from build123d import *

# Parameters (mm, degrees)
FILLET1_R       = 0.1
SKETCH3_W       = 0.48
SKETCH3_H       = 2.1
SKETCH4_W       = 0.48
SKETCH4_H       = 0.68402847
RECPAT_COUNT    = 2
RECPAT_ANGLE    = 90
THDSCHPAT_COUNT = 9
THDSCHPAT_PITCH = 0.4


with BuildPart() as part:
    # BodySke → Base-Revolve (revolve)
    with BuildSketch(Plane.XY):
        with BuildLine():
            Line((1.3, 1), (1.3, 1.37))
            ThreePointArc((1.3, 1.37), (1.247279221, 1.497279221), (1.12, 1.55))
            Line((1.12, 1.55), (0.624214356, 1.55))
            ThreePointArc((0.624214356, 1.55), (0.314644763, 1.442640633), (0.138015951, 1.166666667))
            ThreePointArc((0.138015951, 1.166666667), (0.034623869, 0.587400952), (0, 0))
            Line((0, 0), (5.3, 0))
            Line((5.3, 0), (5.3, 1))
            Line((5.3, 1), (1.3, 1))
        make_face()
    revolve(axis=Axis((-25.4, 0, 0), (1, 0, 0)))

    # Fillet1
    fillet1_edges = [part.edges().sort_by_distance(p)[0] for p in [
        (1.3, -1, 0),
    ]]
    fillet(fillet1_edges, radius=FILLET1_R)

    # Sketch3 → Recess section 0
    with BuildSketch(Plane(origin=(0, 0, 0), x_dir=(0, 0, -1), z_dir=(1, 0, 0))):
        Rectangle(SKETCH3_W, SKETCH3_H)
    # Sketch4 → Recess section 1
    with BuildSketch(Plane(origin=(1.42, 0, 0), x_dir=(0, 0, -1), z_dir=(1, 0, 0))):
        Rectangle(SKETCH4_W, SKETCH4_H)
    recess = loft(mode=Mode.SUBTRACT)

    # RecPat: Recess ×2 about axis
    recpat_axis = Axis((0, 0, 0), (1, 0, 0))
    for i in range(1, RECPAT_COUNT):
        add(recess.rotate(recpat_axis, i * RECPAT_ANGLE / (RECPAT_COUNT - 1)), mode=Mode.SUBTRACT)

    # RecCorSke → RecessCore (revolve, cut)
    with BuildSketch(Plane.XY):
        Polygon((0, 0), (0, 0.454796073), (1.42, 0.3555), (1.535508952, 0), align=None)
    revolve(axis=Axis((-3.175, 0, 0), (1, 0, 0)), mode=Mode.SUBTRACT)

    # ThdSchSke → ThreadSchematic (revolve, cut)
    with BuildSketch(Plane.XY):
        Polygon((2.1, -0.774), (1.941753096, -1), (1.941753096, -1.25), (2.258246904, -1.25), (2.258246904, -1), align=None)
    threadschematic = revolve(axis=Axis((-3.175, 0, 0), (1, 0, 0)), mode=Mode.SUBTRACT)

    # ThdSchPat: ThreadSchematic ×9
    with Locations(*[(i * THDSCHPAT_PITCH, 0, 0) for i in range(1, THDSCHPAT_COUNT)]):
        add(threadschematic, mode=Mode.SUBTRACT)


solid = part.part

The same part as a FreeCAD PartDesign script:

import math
import FreeCAD as App
import Part
import Sketcher
from FreeCAD import Vector
Q = App.Units.Quantity


def edges_at(feature, points):
    """Names of the edges that pass closest to the given points."""
    edges = feature.Shape.Edges
    near = lambda p: min(range(len(edges)), key=lambda i: edges[i].distToShape(Part.Vertex(*p))[0])
    return sorted({f"Edge{near(p) + 1}" for p in points})


def add_polygon(sketch, points):
    """Adds a closed chain of lines whose ends are joined by coincident constraints."""
    first, n = sketch.GeometryCount, len(points)
    for a, b in zip(points, points[1:] + points[:1]):
        sketch.addGeometry(Part.LineSegment(App.Vector(*a, 0), App.Vector(*b, 0)), False)
    for i in range(n):
        sketch.addConstraint(Sketcher.Constraint("Coincident", first + i, 2, first + (i + 1) % n, 1))

doc = App.newDocument("Part")
params = doc.addObject("Spreadsheet::Sheet", "Params")
for row, (alias, value) in enumerate([
    ("sketch1_radius", "5 mm"),
    ("sketch1_radius2", "0.5 mm"),
    ("sketch1_width", "4 mm"),
    ("sketch1_height", "1 mm"),
    ("sketch1_radius3", "0.18 mm"),
    ("revolution_angle", "360 deg"),
    ("fillet_radius", "0.1 mm"),
    ("sketch2_width", "2.1 mm"),
    ("sketch2_height", "0.48 mm"),
    ("sketch3_height", "0.48 mm"),
    ("groove_angle", "360 deg"),
    ("sketch5_height", "0.25 mm"),
    ("groove2_angle", "360 deg"),
    ("linearpattern_pitch", "0.4 mm"),
], start=1):
    params.set(f"A{row}", alias)
    params.set(f"B{row}", "=" + value)
    params.setAlias(f"B{row}", alias)

body = doc.addObject("PartDesign::Body", "Body")

# Sketch on XY plane
sketch1 = body.newObject("Sketcher::SketchObject", "Sketch")
sketch1.AttachmentSupport = (doc.getObject("XY_Plane"), [""])
sketch1.MapMode = "FlatFace"
sketch1.addGeometry([
    Part.LineSegment(Vector(1.3, 1, 0), Vector(1.3, 1.37, 0)),  # 0
    Part.ArcOfCircle(Part.Circle(Vector(1.12, 1.37, 0), Vector(0, 0, 1), 0.18), math.radians(0), math.radians(90)),  # 1
    Part.LineSegment(Vector(1.12, 1.55, 0), Vector(0.62, 1.55, 0)),  # 2
    Part.ArcOfCircle(Part.Circle(Vector(0.62, 1.05, 0), Vector(0, 0, 1), 0.5), math.radians(90), math.radians(167)),  # 3
    Part.ArcOfCircle(Part.Circle(Vector(5, 0, 0), Vector(0, 0, 1), 5), math.radians(166.51), math.radians(180)),  # 4
    Part.LineSegment(Vector(0, 0, 0), Vector(5.3, 0, 0)),  # 5
    Part.LineSegment(Vector(5.3, 0, 0), Vector(5.3, 1, 0)),  # 6
    Part.LineSegment(Vector(5.3, 1, 0), Vector(1.3, 1, 0)),  # 7
], False)
sketch1.addConstraint([
    Sketcher.Constraint("Tangent", 0, 2, 1, 1),
    Sketcher.Constraint("Tangent", 1, 2, 2, 1),
    Sketcher.Constraint("Tangent", 2, 2, 3, 1),
    Sketcher.Constraint("Tangent", 3, 2, 4, 1),
    Sketcher.Constraint("Coincident", 4, 2, 5, 1),
    Sketcher.Constraint("Coincident", 5, 2, 6, 1),
    Sketcher.Constraint("Coincident", 6, 2, 7, 1),
    Sketcher.Constraint("Coincident", 7, 2, 0, 1),
    Sketcher.Constraint("Vertical", 0),
    Sketcher.Constraint("Horizontal", 2),
    Sketcher.Constraint("Horizontal", 5),
    Sketcher.Constraint("Vertical", 6),
    Sketcher.Constraint("Horizontal", 7),
    Sketcher.Constraint("Coincident", 4, 2, -1, 1),
    Sketcher.Constraint("PointOnObject", 4, 3, -1),
    Sketcher.Constraint("Radius", 4, Q("5 mm")),
    Sketcher.Constraint("Radius", 3, Q("0.5 mm")),
    Sketcher.Constraint("DistanceX", 7, 2, 7, 1, Q("4 mm")),
    Sketcher.Constraint("DistanceY", 6, 1, 6, 2, Q("1 mm")),
    Sketcher.Constraint("Radius", 1, Q("0.18 mm")),
    Sketcher.Constraint("DistanceX", 5, 1, 5, 2, Q("5.3 mm")),
    Sketcher.Constraint("DistanceY", 0, 1, 0, 2, Q("0.37 mm")),
])
sketch1.setExpression("Constraints[15]", "Params.sketch1_radius")
sketch1.setExpression("Constraints[16]", "Params.sketch1_radius2")
sketch1.setExpression("Constraints[17]", "Params.sketch1_width")
sketch1.setExpression("Constraints[18]", "Params.sketch1_height")
sketch1.setExpression("Constraints[19]", "Params.sketch1_radius3")
revolution = body.newObject("PartDesign::Revolution", "Revolution")
revolution.Profile = sketch1
revolution.ReferenceAxis = (sketch1, ["H_Axis"])
revolution.setExpression("Angle", "Params.revolution_angle")
doc.recompute()

fillet = body.newObject("PartDesign::Fillet", "Fillet")
fillet.Base = (revolution, edges_at(revolution, [(1.3, -1, 0)]))
fillet.setExpression("Radius", "Params.fillet_radius")

# Sketch on YZ plane
sketch2 = body.newObject("Sketcher::SketchObject", "Sketch001")
sketch2.AttachmentSupport = (doc.getObject("YZ_Plane"), [""])
sketch2.MapMode = "FlatFace"
add_polygon(sketch2, [(1.05, 0.24), (-1.05, 0.24), (-1.05, -0.24), (1.05, -0.24)])  # lines 0-3
sketch2.addConstraint([
    Sketcher.Constraint("Horizontal", 0),
    Sketcher.Constraint("Vertical", 1),
    Sketcher.Constraint("Horizontal", 2),
    Sketcher.Constraint("Vertical", 3),
    Sketcher.Constraint("Symmetric", 0, 2, 2, 2, -1, 1),
    Sketcher.Constraint("DistanceX", 0, 2, 0, 1, Q("2.1 mm")),
    Sketcher.Constraint("DistanceY", 1, 2, 1, 1, Q("0.48 mm")),
])
sketch2.setExpression("Constraints[9]", "Params.sketch2_width")
sketch2.setExpression("Constraints[10]", "Params.sketch2_height")

# Sketch on YZ plane
sketch3 = body.newObject("Sketcher::SketchObject", "Sketch002")
sketch3.AttachmentSupport = (doc.getObject("YZ_Plane"), [""])
sketch3.MapMode = "FlatFace"
sketch3.AttachmentOffset = App.Placement(Vector(0, 0, 1.42), App.Rotation())
add_polygon(sketch3, [(0.34, 0.24), (-0.34, 0.24), (-0.34, -0.24), (0.34, -0.24)])  # lines 0-3
sketch3.addConstraint([
    Sketcher.Constraint("Horizontal", 0),
    Sketcher.Constraint("Vertical", 1),
    Sketcher.Constraint("Horizontal", 2),
    Sketcher.Constraint("Vertical", 3),
    Sketcher.Constraint("Symmetric", 0, 2, 2, 2, -1, 1),
    Sketcher.Constraint("DistanceY", 1, 2, 1, 1, Q("0.48 mm")),
    Sketcher.Constraint("DistanceX", 0, 2, 0, 1, Q("0.684028 mm")),
])
sketch3.setExpression("Constraints[9]", "Params.sketch3_height")

subtractiveloft = body.newObject("PartDesign::SubtractiveLoft", "SubtractiveLoft")
subtractiveloft.Profile = sketch2
subtractiveloft.Sections = [sketch3]
doc.recompute()

polarpattern = body.newObject("PartDesign::PolarPattern", "PolarPattern")
polarpattern.Originals = [subtractiveloft]
polarpattern.Axis = (doc.getObject("X_Axis"), [""])
polarpattern.Angle = 90
polarpattern.Occurrences = 2
body.Tip = polarpattern

# Sketch on XY plane
sketch4 = body.newObject("Sketcher::SketchObject", "Sketch003")
sketch4.AttachmentSupport = (doc.getObject("XY_Plane"), [""])
sketch4.MapMode = "FlatFace"
add_polygon(sketch4, [(0, 0.45), (0, 0), (1.54, 0), (1.42, 0.36)])  # lines 0-3
sketch4.addConstraint([
    Sketcher.Constraint("Vertical", 0),
    Sketcher.Constraint("Horizontal", 1),
    Sketcher.Constraint("Coincident", 0, 2, -1, 1),
    Sketcher.Constraint("Angle", 2, Q("108 deg")),
    Sketcher.Constraint("Angle", 3, Q("176 deg")),
    Sketcher.Constraint("DistanceX", -1, 1, 2, 2, Q("1.42 mm")),
    Sketcher.Constraint("DistanceX", 1, 1, 1, 2, Q("1.535509 mm")),
])
groove = body.newObject("PartDesign::Groove", "Groove")
groove.Profile = sketch4
groove.ReferenceAxis = (sketch4, ["H_Axis"])
groove.setExpression("Angle", "Params.groove_angle")

# Sketch on XY plane
sketch5 = body.newObject("Sketcher::SketchObject", "Sketch004")
sketch5.AttachmentSupport = (doc.getObject("XY_Plane"), [""])
sketch5.MapMode = "FlatFace"
add_polygon(sketch5, [(2.1, -0.77), (1.94, -1), (1.94, -1.25), (2.26, -1.25), (2.26, -1)])  # lines 0-4
sketch5.addConstraint([
    Sketcher.Constraint("Vertical", 1),
    Sketcher.Constraint("Horizontal", 2),
    Sketcher.Constraint("Vertical", 3),
    Sketcher.Constraint("Horizontal", 0, 2, 3, 2),
    Sketcher.Constraint("Equal", 0, 4),
    Sketcher.Constraint("Angle", 0, Q("-125 deg")),
    Sketcher.Constraint("DistanceY", 0, 2, -1, 1, Q("1 mm")),
    Sketcher.Constraint("DistanceY", 1, 2, 1, 1, Q("0.25 mm")),
    Sketcher.Constraint("DistanceX", -1, 1, 4, 2, Q("2.1 mm")),
    Sketcher.Constraint("DistanceY", 4, 2, -1, 1, Q("0.774 mm")),
])
sketch5.setExpression("Constraints[12]", "Params.sketch5_height")
groove2 = body.newObject("PartDesign::Groove", "Groove001")
groove2.Profile = sketch5
groove2.ReferenceAxis = (sketch5, ["H_Axis"])
groove2.setExpression("Angle", "Params.groove2_angle")
doc.recompute()

linearpattern = body.newObject("PartDesign::LinearPattern", "LinearPattern")
linearpattern.Originals = [groove2]
linearpattern.Direction = (doc.getObject("X_Axis"), [""])
linearpattern.Mode = "offset"
linearpattern.setExpression("Offset", "Params.linearpattern_pitch")
linearpattern.Occurrences = 9
body.Tip = linearpattern

doc.recompute()
